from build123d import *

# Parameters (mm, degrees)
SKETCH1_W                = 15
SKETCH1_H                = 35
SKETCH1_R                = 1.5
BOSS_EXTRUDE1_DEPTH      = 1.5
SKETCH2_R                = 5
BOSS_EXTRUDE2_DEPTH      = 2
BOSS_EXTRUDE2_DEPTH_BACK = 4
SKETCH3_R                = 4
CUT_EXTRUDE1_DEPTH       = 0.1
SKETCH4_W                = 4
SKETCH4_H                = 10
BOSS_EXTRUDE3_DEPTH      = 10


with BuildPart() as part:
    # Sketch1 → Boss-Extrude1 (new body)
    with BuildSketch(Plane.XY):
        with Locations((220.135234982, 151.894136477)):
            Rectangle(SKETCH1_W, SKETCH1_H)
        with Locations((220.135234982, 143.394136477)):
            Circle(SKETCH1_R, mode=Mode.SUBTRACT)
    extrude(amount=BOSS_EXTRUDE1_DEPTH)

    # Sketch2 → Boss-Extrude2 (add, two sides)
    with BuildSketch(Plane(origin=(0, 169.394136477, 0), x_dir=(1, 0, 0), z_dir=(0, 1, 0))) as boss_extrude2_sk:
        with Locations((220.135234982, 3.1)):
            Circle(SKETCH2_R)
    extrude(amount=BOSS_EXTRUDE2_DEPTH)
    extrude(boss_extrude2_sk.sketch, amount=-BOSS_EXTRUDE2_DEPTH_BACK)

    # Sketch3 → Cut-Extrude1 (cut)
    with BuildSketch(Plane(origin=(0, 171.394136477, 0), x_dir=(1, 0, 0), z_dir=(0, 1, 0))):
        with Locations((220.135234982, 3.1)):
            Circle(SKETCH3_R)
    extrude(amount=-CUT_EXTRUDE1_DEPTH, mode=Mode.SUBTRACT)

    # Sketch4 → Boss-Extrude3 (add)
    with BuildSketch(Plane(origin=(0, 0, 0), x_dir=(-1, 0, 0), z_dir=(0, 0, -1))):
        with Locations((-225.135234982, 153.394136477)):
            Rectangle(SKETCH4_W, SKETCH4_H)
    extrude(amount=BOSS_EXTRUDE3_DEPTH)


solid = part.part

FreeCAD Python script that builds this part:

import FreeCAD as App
import Part
import Sketcher

doc = App.newDocument("Part")
params = doc.addObject("Spreadsheet::Sheet", "Params")
for row, (alias, value) in enumerate([
    ("sketch1_diameter", "3 mm"),
    ("sketch1_width", "15 mm"),
    ("sketch1_height", "35 mm"),
    ("pad1_length", "1.5 mm"),
    ("sketch2_diameter", "10 mm"),
    ("pad2_length", "2 mm"),
    ("pad2_length2", "4 mm"),
    ("sketch3_diameter", "8 mm"),
    ("pocket1_length", "0.1 mm"),
    ("sketch4_width", "4 mm"),
    ("sketch4_height", "10 mm"),
    ("pad3_length", "10 mm"),
], start=1):
    params.set(f"A{row}", alias)
    params.set(f"B{row}", "=" + value)
    params.setAlias(f"B{row}", alias)

body = doc.addObject("PartDesign::Body", "Body")

sketch1 = body.newObject("Sketcher::SketchObject", "Sketch")
sketch1.AttachmentSupport = (doc.getObject("XY_Plane"), [""])
sketch1.MapMode = "FlatFace"
sketch1.addGeometry([
    Part.LineSegment(App.Vector(212.635235, 169.394136, 0), App.Vector(212.635235, 134.394136, 0)),
    Part.LineSegment(App.Vector(212.635235, 134.394136, 0), App.Vector(227.635235, 134.394136, 0)),
    Part.LineSegment(App.Vector(227.635235, 134.394136, 0), App.Vector(227.635235, 169.394136, 0)),
    Part.LineSegment(App.Vector(227.635235, 169.394136, 0), App.Vector(212.635235, 169.394136, 0)),
    Part.Circle(App.Vector(220.135235, 143.394136, 0), App.Vector(0, 0, 1), 1.5),
], False)
sketch1.addConstraint([
    Sketcher.Constraint("Coincident", 0, 2, 1, 1),
    Sketcher.Constraint("Coincident", 1, 2, 2, 1),
    Sketcher.Constraint("Coincident", 2, 2, 3, 1),
    Sketcher.Constraint("Coincident", 3, 2, 0, 1),
    Sketcher.Constraint("Vertical", 0),
    Sketcher.Constraint("Horizontal", 1),
    Sketcher.Constraint("Vertical", 2),
    Sketcher.Constraint("Horizontal", 3),
    Sketcher.Constraint("Diameter", 4, 3.0),
    Sketcher.Constraint("DistanceX", 1, 1, 1, 2, 15.0),
    Sketcher.Constraint("DistanceY", 0, 2, 0, 1, 35.0),
    Sketcher.Constraint("DistanceY", 0, 2, 4, 3, 9.0),
    Sketcher.Constraint("DistanceX", 0, 2, 4, 3, 7.5),
    Sketcher.Constraint("DistanceX", -1, 1, 4, 3, 220.135235),
    Sketcher.Constraint("DistanceY", -1, 1, 4, 3, 143.394136),
])
sketch1.setExpression("Constraints[8]", "Params.sketch1_diameter")
sketch1.setExpression("Constraints[9]", "Params.sketch1_width")
sketch1.setExpression("Constraints[10]", "Params.sketch1_height")
pad1 = body.newObject("PartDesign::Pad", "Pad")
pad1.Profile = sketch1
pad1.setExpression("Length", "Params.pad1_length")

sketch2 = body.newObject("Sketcher::SketchObject", "Sketch001")
sketch2.AttachmentSupport = (doc.getObject("XZ_Plane"), [""])
sketch2.MapMode = "FlatFace"
sketch2.AttachmentOffset = App.Placement(App.Vector(0, 0, -169.394136), App.Rotation())
sketch2.addGeometry(Part.Circle(App.Vector(220.135235, -3.1, 0), App.Vector(0, 0, 1), 5), False)
sketch2.addConstraint([
    Sketcher.Constraint("Diameter", 0, 10.0),
    Sketcher.Constraint("DistanceY", 0, 3, -1, 1, 3.1),
    Sketcher.Constraint("DistanceX", -1, 1, 0, 3, 220.135235),
])
sketch2.setExpression("Constraints[0]", "Params.sketch2_diameter")
pad2 = body.newObject("PartDesign::Pad", "Pad001")
pad2.Profile = sketch2
pad2.Type = "TwoLengths"
pad2.setExpression("Length", "Params.pad2_length")
pad2.setExpression("Length2", "Params.pad2_length2")
pad2.Reversed = True

sketch3 = body.newObject("Sketcher::SketchObject", "Sketch002")
sketch3.AttachmentSupport = (doc.getObject("XZ_Plane"), [""])
sketch3.MapMode = "FlatFace"
sketch3.AttachmentOffset = App.Placement(App.Vector(0, 0, -171.394136), App.Rotation())
sketch3.addGeometry(Part.Circle(App.Vector(220.135235, -3.1, 0), App.Vector(0, 0, 1), 4), False)
sketch3.addConstraint([
    Sketcher.Constraint("Diameter", 0, 8.0),
    Sketcher.Constraint("DistanceY", 0, 3, -1, 1, 3.1),
    Sketcher.Constraint("DistanceX", -1, 1, 0, 3, 220.135235),
])
sketch3.setExpression("Constraints[0]", "Params.sketch3_diameter")
pocket1 = body.newObject("PartDesign::Pocket", "Pocket")
pocket1.Profile = sketch3
pocket1.setExpression("Length", "Params.pocket1_length")
pocket1.Reversed = True

sketch4 = body.newObject("Sketcher::SketchObject", "Sketch003")
sketch4.AttachmentSupport = (doc.getObject("XY_Plane"), [""])
sketch4.MapMode = "FlatFace"
sketch4.addGeometry([
    Part.LineSegment(App.Vector(227.135235, 158.394136, 0), App.Vector(227.135235, 148.394136, 0)),
    Part.LineSegment(App.Vector(227.135235, 148.394136, 0), App.Vector(223.135235, 148.394136, 0)),
    Part.LineSegment(App.Vector(223.135235, 148.394136, 0), App.Vector(223.135235, 158.394136, 0)),
    Part.LineSegment(App.Vector(223.135235, 158.394136, 0), App.Vector(227.135235, 158.394136, 0)),
], False)
sketch4.addConstraint([
    Sketcher.Constraint("Coincident", 0, 2, 1, 1),
    Sketcher.Constraint("Coincident", 1, 2, 2, 1),
    Sketcher.Constraint("Coincident", 2, 2, 3, 1),
    Sketcher.Constraint("Coincident", 3, 2, 0, 1),
    Sketcher.Constraint("Vertical", 0),
    Sketcher.Constraint("Horizontal", 1),
    Sketcher.Constraint("Vertical", 2),
    Sketcher.Constraint("Horizontal", 3),
    Sketcher.Constraint("DistanceX", 1, 2, 1, 1, 4.0),
    Sketcher.Constraint("DistanceY", 0, 2, 0, 1, 10.0),
    Sketcher.Constraint("DistanceX", -1, 1, 0, 2, 227.135235),
    Sketcher.Constraint("DistanceY", -1, 1, 0, 2, 148.394136),
])
sketch4.setExpression("Constraints[8]", "Params.sketch4_width")
sketch4.setExpression("Constraints[9]", "Params.sketch4_height")
pad3 = body.newObject("PartDesign::Pad", "Pad002")
pad3.Profile = sketch4
pad3.setExpression("Length", "Params.pad3_length")
pad3.Reversed = True

doc.recompute()
